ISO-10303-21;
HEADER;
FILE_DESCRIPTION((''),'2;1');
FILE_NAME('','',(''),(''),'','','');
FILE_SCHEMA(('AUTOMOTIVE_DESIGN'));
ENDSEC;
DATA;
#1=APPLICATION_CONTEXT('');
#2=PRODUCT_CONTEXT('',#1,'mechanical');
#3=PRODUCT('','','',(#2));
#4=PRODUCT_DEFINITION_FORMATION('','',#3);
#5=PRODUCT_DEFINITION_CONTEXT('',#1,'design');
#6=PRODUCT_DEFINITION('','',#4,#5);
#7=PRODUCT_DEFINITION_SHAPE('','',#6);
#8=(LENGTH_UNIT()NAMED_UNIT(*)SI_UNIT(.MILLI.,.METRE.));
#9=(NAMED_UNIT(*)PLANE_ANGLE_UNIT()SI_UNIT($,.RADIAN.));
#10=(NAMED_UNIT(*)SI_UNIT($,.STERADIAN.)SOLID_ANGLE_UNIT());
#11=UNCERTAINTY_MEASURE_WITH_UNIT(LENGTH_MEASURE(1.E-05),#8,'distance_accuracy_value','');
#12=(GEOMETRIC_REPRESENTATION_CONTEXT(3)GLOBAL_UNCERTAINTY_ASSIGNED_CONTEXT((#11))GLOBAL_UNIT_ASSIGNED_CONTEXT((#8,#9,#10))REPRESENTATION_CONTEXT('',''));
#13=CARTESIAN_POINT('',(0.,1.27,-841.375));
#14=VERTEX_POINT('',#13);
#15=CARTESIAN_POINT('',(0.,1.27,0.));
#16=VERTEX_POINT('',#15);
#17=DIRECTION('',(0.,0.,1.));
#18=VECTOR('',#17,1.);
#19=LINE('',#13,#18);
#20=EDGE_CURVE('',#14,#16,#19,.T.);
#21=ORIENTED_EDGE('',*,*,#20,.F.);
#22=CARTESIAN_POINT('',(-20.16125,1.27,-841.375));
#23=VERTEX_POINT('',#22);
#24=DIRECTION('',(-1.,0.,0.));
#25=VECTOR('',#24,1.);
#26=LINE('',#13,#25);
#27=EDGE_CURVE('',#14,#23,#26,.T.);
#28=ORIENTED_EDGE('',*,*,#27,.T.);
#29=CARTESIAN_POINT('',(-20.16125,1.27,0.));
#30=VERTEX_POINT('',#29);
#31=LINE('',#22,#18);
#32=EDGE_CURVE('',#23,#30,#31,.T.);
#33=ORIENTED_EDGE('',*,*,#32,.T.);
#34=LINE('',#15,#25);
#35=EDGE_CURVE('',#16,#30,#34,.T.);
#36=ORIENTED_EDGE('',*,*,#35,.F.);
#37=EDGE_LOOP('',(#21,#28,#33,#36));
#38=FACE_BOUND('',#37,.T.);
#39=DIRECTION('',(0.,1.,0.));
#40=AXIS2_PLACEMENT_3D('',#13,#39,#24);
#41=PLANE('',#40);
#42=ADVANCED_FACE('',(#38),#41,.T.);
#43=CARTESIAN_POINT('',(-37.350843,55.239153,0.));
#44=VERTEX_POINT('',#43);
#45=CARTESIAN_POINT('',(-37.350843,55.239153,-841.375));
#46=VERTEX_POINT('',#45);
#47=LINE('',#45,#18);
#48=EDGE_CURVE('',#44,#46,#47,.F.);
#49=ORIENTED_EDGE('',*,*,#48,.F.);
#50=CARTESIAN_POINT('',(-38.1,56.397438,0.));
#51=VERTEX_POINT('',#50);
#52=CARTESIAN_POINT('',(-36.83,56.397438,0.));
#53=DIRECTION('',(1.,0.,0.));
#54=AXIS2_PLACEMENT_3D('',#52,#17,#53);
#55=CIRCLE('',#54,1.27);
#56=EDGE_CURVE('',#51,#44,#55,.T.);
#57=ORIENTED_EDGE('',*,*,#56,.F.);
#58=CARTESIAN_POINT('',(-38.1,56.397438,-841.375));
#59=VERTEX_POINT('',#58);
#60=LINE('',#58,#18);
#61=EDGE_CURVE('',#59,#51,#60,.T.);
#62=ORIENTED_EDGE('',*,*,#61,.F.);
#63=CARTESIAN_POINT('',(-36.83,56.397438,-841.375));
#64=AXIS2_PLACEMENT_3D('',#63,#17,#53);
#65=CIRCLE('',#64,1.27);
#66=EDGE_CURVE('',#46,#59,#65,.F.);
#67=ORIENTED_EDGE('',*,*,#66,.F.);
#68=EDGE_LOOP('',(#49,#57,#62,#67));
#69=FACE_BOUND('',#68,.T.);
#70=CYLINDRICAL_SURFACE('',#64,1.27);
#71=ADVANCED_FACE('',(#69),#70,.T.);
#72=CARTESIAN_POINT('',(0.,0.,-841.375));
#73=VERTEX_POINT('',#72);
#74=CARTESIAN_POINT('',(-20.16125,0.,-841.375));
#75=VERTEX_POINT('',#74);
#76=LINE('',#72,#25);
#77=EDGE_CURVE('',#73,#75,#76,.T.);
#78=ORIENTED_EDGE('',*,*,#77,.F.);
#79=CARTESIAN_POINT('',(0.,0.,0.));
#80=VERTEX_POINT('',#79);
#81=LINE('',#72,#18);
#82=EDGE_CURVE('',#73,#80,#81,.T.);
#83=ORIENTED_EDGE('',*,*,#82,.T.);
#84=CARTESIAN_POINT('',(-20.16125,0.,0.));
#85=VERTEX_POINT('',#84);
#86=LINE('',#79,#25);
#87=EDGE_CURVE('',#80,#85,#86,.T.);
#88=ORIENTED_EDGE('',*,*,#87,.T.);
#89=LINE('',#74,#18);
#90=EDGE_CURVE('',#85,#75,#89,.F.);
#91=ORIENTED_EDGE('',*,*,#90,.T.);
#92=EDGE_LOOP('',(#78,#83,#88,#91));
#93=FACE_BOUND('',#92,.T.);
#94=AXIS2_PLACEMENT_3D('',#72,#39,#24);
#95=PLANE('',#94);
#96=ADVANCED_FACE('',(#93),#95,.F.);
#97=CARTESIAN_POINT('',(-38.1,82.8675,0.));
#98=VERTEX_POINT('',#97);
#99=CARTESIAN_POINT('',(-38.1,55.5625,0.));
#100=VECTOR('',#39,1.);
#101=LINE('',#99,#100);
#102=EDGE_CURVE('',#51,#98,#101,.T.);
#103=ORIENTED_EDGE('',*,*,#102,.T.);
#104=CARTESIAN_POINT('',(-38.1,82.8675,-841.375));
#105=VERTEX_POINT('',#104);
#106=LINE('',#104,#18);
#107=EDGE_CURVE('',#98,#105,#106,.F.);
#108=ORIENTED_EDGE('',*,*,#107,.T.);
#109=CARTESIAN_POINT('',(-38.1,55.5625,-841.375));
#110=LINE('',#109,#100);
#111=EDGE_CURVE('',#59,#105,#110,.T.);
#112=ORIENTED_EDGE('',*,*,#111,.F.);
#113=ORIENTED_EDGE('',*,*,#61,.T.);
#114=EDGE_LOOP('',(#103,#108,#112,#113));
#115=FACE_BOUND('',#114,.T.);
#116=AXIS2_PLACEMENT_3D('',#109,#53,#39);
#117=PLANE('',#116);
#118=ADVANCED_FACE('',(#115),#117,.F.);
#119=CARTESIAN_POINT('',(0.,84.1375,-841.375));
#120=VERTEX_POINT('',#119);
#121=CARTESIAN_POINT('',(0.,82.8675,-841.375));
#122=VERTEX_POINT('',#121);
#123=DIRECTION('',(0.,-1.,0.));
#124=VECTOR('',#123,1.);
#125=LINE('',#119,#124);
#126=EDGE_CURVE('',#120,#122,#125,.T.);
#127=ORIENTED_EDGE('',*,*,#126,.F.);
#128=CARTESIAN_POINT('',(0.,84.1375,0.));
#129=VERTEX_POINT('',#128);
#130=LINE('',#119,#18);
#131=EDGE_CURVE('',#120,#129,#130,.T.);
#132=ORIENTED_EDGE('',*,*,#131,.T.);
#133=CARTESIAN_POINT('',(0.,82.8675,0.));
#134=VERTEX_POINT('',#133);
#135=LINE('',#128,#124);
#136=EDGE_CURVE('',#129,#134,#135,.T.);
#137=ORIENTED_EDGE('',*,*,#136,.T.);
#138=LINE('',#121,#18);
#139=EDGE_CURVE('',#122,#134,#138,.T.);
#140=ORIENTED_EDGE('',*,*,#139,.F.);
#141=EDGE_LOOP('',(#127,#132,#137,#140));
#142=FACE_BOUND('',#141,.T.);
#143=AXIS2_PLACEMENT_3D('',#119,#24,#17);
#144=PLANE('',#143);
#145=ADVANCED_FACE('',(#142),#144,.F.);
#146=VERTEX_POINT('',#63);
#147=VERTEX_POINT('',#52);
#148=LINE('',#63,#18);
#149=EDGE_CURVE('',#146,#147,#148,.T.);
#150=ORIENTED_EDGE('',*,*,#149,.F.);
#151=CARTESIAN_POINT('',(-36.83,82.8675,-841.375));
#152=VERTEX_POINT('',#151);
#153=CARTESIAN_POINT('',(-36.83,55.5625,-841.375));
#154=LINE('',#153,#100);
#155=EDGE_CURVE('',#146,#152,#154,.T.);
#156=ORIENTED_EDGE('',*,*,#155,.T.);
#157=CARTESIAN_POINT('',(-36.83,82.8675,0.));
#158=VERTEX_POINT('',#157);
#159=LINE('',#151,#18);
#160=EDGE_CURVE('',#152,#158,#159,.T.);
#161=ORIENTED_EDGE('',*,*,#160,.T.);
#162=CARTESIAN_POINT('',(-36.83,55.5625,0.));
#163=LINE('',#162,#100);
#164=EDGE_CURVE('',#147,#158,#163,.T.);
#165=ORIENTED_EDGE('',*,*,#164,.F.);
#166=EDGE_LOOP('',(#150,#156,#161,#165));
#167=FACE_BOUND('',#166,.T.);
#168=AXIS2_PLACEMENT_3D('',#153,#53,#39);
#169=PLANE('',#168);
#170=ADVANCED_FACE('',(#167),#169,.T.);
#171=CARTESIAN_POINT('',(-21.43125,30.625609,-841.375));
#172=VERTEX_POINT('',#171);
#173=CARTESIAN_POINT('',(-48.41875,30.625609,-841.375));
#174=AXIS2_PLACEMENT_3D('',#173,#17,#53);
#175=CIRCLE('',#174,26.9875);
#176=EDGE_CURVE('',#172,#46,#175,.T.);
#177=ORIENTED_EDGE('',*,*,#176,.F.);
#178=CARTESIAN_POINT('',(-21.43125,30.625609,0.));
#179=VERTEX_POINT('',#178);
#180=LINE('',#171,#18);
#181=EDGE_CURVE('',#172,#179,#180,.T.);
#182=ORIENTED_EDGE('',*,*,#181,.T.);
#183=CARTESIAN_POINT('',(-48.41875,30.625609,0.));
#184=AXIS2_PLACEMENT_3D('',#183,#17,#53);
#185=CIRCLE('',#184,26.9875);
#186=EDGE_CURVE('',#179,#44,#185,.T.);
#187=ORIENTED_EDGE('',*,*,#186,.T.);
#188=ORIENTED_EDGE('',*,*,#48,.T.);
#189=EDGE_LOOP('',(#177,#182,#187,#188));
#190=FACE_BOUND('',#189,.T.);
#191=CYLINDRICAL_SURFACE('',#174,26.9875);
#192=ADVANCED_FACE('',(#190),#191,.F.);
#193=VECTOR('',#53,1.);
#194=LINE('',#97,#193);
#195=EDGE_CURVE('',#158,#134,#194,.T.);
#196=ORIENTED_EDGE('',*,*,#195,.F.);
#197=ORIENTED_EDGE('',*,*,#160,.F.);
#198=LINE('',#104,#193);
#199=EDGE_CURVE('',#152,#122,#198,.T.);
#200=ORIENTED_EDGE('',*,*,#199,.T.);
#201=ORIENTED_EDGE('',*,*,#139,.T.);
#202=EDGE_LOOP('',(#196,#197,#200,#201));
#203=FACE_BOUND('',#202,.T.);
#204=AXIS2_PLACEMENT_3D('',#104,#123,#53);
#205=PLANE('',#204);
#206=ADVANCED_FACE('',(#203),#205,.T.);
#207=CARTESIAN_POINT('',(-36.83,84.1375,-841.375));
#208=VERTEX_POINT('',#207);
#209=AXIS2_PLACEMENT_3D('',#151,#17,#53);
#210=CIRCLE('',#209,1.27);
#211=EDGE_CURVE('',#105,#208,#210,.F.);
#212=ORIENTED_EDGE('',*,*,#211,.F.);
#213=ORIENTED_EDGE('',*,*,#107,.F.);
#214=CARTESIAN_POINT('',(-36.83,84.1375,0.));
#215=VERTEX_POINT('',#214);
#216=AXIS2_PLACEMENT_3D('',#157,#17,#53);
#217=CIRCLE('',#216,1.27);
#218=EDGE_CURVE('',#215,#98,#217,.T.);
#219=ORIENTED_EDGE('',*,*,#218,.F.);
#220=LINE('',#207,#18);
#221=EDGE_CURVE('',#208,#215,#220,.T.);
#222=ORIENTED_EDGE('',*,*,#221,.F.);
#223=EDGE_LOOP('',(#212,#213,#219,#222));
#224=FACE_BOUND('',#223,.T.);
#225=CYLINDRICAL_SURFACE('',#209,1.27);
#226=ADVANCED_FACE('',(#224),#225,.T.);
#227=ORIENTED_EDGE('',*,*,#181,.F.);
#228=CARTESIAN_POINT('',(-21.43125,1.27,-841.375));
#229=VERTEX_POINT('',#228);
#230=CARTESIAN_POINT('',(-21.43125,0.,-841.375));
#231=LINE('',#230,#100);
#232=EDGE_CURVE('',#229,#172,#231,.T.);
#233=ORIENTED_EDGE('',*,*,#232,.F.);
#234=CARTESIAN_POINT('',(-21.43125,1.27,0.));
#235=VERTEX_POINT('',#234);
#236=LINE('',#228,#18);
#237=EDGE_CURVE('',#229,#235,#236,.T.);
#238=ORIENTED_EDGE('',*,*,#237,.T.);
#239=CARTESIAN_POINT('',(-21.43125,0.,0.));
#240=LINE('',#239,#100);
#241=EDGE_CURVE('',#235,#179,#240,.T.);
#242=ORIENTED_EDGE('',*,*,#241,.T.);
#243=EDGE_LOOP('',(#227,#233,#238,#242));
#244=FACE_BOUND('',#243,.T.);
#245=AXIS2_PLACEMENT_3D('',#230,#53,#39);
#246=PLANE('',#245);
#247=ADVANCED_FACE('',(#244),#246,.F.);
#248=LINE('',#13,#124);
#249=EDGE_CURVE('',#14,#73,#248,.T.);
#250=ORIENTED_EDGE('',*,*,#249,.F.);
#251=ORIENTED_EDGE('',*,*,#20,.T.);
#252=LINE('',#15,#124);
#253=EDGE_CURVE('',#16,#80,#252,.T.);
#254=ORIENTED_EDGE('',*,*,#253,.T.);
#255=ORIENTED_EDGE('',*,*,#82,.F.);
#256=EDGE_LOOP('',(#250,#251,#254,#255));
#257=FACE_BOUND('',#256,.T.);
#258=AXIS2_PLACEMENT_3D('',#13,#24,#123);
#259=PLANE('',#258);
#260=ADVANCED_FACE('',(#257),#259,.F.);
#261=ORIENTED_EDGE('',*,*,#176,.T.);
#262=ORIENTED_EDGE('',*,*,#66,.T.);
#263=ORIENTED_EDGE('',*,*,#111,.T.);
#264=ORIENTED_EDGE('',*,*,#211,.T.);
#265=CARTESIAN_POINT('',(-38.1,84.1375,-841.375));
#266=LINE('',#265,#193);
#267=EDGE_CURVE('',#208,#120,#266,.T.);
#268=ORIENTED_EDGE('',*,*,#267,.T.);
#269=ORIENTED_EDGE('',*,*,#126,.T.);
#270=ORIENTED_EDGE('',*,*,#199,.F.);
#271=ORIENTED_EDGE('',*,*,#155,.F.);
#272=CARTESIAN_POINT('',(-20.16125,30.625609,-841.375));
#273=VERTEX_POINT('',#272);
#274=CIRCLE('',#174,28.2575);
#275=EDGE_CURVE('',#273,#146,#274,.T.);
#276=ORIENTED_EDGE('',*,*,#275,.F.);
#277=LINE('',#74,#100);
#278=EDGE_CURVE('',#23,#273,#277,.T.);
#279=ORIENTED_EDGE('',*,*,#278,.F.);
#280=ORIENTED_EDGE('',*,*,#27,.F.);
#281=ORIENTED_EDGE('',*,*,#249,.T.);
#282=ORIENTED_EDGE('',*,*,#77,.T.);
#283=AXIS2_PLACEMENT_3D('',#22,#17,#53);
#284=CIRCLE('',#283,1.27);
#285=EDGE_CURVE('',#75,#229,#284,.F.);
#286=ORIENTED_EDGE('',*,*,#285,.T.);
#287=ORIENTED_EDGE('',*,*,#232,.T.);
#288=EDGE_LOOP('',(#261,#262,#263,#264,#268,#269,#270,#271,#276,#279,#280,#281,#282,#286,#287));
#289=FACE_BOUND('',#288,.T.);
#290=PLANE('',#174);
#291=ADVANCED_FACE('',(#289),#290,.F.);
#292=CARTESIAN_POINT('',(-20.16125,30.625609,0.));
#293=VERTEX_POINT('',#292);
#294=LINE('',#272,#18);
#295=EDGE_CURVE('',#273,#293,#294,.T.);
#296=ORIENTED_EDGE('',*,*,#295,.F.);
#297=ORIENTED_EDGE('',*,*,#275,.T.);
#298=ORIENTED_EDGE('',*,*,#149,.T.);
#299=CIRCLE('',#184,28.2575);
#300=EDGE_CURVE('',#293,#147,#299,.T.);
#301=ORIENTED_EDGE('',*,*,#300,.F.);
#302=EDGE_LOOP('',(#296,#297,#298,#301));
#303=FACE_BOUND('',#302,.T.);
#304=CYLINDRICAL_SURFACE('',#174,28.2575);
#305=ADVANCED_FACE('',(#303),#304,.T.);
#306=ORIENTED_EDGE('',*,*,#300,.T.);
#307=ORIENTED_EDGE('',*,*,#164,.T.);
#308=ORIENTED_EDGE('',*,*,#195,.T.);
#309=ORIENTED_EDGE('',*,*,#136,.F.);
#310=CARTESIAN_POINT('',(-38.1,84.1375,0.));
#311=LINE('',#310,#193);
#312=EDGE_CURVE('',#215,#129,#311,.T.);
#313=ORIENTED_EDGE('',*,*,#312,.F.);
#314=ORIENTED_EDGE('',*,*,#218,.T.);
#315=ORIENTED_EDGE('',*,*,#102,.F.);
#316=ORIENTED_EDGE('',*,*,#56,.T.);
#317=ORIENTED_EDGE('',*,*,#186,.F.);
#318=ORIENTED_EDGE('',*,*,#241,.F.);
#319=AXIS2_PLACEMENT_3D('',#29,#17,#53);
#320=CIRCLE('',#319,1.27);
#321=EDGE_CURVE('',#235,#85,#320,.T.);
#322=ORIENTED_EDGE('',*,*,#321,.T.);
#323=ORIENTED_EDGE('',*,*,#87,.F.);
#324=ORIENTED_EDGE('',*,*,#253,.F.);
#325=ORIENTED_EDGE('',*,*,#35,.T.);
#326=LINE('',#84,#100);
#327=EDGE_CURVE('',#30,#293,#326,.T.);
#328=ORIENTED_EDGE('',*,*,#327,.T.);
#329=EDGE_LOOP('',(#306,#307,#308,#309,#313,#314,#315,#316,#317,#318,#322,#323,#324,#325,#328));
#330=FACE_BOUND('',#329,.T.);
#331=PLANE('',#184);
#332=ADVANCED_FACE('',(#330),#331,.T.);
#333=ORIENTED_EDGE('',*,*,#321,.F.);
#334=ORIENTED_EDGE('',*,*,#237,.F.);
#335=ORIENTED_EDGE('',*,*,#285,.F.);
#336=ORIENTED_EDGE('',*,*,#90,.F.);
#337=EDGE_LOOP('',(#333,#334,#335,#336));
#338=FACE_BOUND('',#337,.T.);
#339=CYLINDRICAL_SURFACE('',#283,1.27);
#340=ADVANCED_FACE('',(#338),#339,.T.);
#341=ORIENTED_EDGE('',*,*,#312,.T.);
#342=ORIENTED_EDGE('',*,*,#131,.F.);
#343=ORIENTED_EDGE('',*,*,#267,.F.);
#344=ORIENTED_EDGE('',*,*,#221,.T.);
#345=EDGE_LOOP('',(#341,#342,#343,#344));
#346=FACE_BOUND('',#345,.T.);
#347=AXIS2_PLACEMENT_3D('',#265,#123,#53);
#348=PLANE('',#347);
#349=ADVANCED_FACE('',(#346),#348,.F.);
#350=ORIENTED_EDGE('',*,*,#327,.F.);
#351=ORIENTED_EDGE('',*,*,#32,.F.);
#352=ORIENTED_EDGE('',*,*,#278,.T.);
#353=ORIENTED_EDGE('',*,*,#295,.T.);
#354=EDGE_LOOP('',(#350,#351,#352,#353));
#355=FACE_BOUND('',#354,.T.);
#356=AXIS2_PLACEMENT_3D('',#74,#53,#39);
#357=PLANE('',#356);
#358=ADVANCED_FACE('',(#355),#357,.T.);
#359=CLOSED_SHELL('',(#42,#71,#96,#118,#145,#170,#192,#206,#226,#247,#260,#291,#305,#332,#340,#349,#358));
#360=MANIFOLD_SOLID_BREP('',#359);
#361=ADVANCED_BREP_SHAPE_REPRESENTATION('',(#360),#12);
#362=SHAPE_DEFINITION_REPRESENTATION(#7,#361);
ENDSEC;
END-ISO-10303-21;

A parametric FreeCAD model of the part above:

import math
import FreeCAD as App
import Part
import Sketcher
Q = App.Units.Quantity


def edges_at(feature, points):
    """Names of the edges that pass closest to the given points."""
    edges = feature.Shape.Edges
    near = lambda p: min(range(len(edges)), key=lambda i: edges[i].distToShape(Part.Vertex(*p))[0])
    return sorted({f"Edge{near(p) + 1}" for p in points})

doc = App.newDocument("Part")
body = doc.addObject("PartDesign::Body", "Body")

# Sketch on XY plane
sketch1 = body.newObject("Sketcher::SketchObject", "Sketch")
sketch1.AttachmentSupport = (doc.getObject("XY_Plane"), [""])
sketch1.MapMode = "FlatFace"
sketch1.addGeometry([
    Part.LineSegment(App.Vector(-21.4, 0, 0), App.Vector(0, 0, 0)),  # 0
    Part.LineSegment(App.Vector(0, 0, 0), App.Vector(0, 1.3, 0)),  # 1
    Part.LineSegment(App.Vector(0, 1.3, 0), App.Vector(-20.2, 1.3, 0)),  # 2
    Part.LineSegment(App.Vector(-20.2, 1.3, 0), App.Vector(-20.2, 30.6, 0)),  # 3
    Part.ArcOfCircle(Part.Circle(App.Vector(-48.4, 30.6, 0), App.Vector(0, 0, 1), 28.3), math.radians(0), math.radians(66)),  # 4
    Part.LineSegment(App.Vector(-36.8, 56.4, 0), App.Vector(-36.8, 82.9, 0)),  # 5
    Part.LineSegment(App.Vector(-36.8, 82.9, 0), App.Vector(0, 82.9, 0)),  # 6
    Part.LineSegment(App.Vector(0, 82.9, 0), App.Vector(0, 84.1, 0)),  # 7
    Part.LineSegment(App.Vector(0, 84.1, 0), App.Vector(-38.1, 84.1, 0)),  # 8
    Part.LineSegment(App.Vector(-38.1, 84.1, 0), App.Vector(-38.1, 55.6, 0)),  # 9
    Part.ArcOfCircle(Part.Circle(App.Vector(-48.4, 30.6, 0), App.Vector(0, 0, 1), 27), math.radians(0), math.radians(68)),  # 10
    Part.LineSegment(App.Vector(-21.4, 30.6, 0), App.Vector(-21.4, 0, 0)),  # 11
], False)
sketch1.addConstraint([
    Sketcher.Constraint("Coincident", 0, 2, 1, 1),
    Sketcher.Constraint("Coincident", 1, 2, 2, 1),
    Sketcher.Constraint("Coincident", 2, 2, 3, 1),
    Sketcher.Constraint("Tangent", 3, 2, 4, 1),
    Sketcher.Constraint("Coincident", 4, 2, 5, 1),
    Sketcher.Constraint("Coincident", 5, 2, 6, 1),
    Sketcher.Constraint("Coincident", 6, 2, 7, 1),
    Sketcher.Constraint("Coincident", 7, 2, 8, 1),
    Sketcher.Constraint("Coincident", 8, 2, 9, 1),
    Sketcher.Constraint("Coincident", 9, 2, 10, 2),
    Sketcher.Constraint("Tangent", 10, 1, 11, 1),
    Sketcher.Constraint("Coincident", 11, 2, 0, 1),
    Sketcher.Constraint("Horizontal", 0),
    Sketcher.Constraint("Vertical", 1),
    Sketcher.Constraint("Horizontal", 2),
    Sketcher.Constraint("Vertical", 3),
    Sketcher.Constraint("Vertical", 5),
    Sketcher.Constraint("Horizontal", 6),
    Sketcher.Constraint("Vertical", 7),
    Sketcher.Constraint("Horizontal", 8),
    Sketcher.Constraint("Vertical", 9),
    Sketcher.Constraint("Vertical", 11),
    Sketcher.Constraint("Coincident", 0, 2, -1, 1),
    Sketcher.Constraint("Coincident", 10, 3, 4, 3),
    Sketcher.Constraint("PointOnObject", 6, 2, -2),
    Sketcher.Constraint("Equal", 1, 7),
    Sketcher.Constraint("DistanceX", 8, 2, 8, 1, Q("1.5 in")),
    Sketcher.Constraint("Radius", 10, Q("1.0625 in")),
    Sketcher.Constraint("DistanceX", 6, 1, 6, 2, Q("1.45 in")),
    Sketcher.Constraint("DistanceY", 1, 1, 1, 2, Q("0.05 in")),
    Sketcher.Constraint("Radius", 4, Q("1.1125 in")),
    Sketcher.Constraint("DistanceX", 0, 1, 0, 2, Q("0.84375 in")),
    Sketcher.Constraint("DistanceY", 9, 2, 9, 1, Q("1.125 in")),
    Sketcher.Constraint("DistanceY", -1, 1, 7, 2, Q("3.3125 in")),
])
pad1 = body.newObject("PartDesign::Pad", "Pad")
pad1.Profile = sketch1
pad1.Length = Q("33.125 in")
pad1.Reversed = True
doc.recompute()

fillet = body.newObject("PartDesign::Fillet", "Fillet")
fillet.Base = (pad1, edges_at(pad1, [(-21.431, 0, -420.688), (-38.1, 55.562, -420.688), (-38.1, 84.138, -420.688)]))
fillet.Radius = Q("0.05 in")

doc.recompute()
